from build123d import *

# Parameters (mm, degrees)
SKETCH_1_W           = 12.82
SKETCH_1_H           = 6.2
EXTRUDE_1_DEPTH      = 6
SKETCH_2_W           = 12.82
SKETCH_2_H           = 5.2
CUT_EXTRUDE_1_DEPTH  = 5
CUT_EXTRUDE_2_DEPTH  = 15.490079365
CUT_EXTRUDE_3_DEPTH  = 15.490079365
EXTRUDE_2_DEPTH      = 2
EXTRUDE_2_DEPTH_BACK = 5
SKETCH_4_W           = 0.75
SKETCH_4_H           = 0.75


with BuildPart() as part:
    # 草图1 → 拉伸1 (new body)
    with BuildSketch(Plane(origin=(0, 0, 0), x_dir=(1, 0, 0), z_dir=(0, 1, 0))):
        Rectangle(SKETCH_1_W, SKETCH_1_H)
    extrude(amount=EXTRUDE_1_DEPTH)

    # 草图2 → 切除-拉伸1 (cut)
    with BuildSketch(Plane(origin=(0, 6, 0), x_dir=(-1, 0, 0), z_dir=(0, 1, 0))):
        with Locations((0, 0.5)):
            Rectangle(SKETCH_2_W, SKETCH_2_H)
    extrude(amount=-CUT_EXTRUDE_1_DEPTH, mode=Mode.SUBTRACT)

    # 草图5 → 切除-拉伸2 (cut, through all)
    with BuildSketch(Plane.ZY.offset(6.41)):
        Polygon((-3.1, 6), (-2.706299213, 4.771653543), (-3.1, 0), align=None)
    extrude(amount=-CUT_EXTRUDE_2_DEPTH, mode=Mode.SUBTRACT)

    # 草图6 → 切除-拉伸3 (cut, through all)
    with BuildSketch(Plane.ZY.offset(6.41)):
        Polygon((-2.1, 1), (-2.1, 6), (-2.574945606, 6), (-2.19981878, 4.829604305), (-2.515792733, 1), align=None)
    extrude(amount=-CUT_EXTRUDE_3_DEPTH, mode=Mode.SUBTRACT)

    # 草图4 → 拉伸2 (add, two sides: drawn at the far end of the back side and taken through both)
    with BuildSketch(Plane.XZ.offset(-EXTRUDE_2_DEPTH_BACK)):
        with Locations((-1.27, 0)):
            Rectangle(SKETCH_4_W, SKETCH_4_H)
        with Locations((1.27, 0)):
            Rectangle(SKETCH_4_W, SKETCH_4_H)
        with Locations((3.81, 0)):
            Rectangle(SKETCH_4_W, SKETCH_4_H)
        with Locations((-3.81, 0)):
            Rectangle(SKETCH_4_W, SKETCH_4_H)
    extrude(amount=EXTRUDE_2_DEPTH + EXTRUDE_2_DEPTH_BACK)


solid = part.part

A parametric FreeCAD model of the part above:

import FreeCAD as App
import Part
import Sketcher
from FreeCAD import Vector

doc = App.newDocument("Part")
params = doc.addObject("Spreadsheet::Sheet", "Params")
for row, (alias, value) in enumerate([
    ("sketch1_height", "6.2 mm"),
    ("sketch1_width", "12.82 mm"),
    ("pad1_length", "6 mm"),
    ("sketch2_height", "5.2 mm"),
    ("sketch2_width", "12.82 mm"),
    ("pocket1_length", "5 mm"),
    ("sketch3_width", "6 mm"),
    ("sketch4_width", "5 mm"),
    ("sketch5_width", "0.75 mm"),
    ("pad2_length", "2 mm"),
    ("pad2_length2", "5 mm"),
], start=1):
    params.set(f"A{row}", alias)
    params.set(f"B{row}", "=" + value)
    params.setAlias(f"B{row}", alias)

body = doc.addObject("PartDesign::Body", "Body")

sketch1 = body.newObject("Sketcher::SketchObject", "Sketch")
sketch1.AttachmentSupport = (doc.getObject("XZ_Plane"), [""])
sketch1.MapMode = "FlatFace"
sketch1.addGeometry([
    Part.LineSegment(Vector(-6, -3, 0), Vector(-6, 3, 0)),
    Part.LineSegment(Vector(-6, 3, 0), Vector(6, 3, 0)),
    Part.LineSegment(Vector(6, 3, 0), Vector(6, -3, 0)),
    Part.LineSegment(Vector(6, -3, 0), Vector(-6, -3, 0)),
], False)
sketch1.addConstraint([
    Sketcher.Constraint("Coincident", 0, 2, 1, 1),
    Sketcher.Constraint("Coincident", 1, 2, 2, 1),
    Sketcher.Constraint("Coincident", 2, 2, 3, 1),
    Sketcher.Constraint("Coincident", 3, 2, 0, 1),
    Sketcher.Constraint("Vertical", 0),
    Sketcher.Constraint("Horizontal", 1),
    Sketcher.Constraint("Vertical", 2),
    Sketcher.Constraint("Horizontal", 3),
    Sketcher.Constraint("Symmetric", 0, 2, 2, 2, -1, 1),
    Sketcher.Constraint("DistanceY", 0, 1, 0, 2, 6.2),
    Sketcher.Constraint("DistanceX", 1, 1, 1, 2, 12.82),
])
sketch1.setExpression("Constraints[9]", "Params.sketch1_height")
sketch1.setExpression("Constraints[10]", "Params.sketch1_width")
pad1 = body.newObject("PartDesign::Pad", "Pad")
pad1.Profile = sketch1
pad1.setExpression("Length", "Params.pad1_length")
pad1.Reversed = True

sketch2 = body.newObject("Sketcher::SketchObject", "Sketch001")
sketch2.AttachmentSupport = (doc.getObject("XZ_Plane"), [""])
sketch2.MapMode = "FlatFace"
sketch2.AttachmentOffset = App.Placement(Vector(0, 0, -6), App.Rotation())
sketch2.addGeometry([
    Part.LineSegment(Vector(6, 3, 0), Vector(6, -2, 0)),
    Part.LineSegment(Vector(6, -2, 0), Vector(-6, -2, 0)),
    Part.LineSegment(Vector(-6, -2, 0), Vector(-6, 3, 0)),
    Part.LineSegment(Vector(-6, 3, 0), Vector(6, 3, 0)),
], False)
sketch2.addConstraint([
    Sketcher.Constraint("Coincident", 0, 2, 1, 1),
    Sketcher.Constraint("Coincident", 1, 2, 2, 1),
    Sketcher.Constraint("Coincident", 2, 2, 3, 1),
    Sketcher.Constraint("Coincident", 3, 2, 0, 1),
    Sketcher.Constraint("Vertical", 0),
    Sketcher.Constraint("Horizontal", 1),
    Sketcher.Constraint("Vertical", 2),
    Sketcher.Constraint("Horizontal", 3),
    Sketcher.Constraint("DistanceY", 0, 2, 0, 1, 5.2),
    Sketcher.Constraint("DistanceX", 1, 2, 1, 1, 12.82),
    Sketcher.Constraint("DistanceY", 0, 2, -1, 1, 2.1),
    Sketcher.Constraint("DistanceX", -1, 1, 0, 2, 6.41),
])
sketch2.setExpression("Constraints[8]", "Params.sketch2_height")
sketch2.setExpression("Constraints[9]", "Params.sketch2_width")
pocket1 = body.newObject("PartDesign::Pocket", "Pocket")
pocket1.Profile = sketch2
pocket1.setExpression("Length", "Params.pocket1_length")
pocket1.Reversed = True

sketch3 = body.newObject("Sketcher::SketchObject", "Sketch002")
sketch3.AttachmentSupport = (doc.getObject("YZ_Plane"), [""])
sketch3.MapMode = "FlatFace"
sketch3.AttachmentOffset = App.Placement(Vector(0, 0, -6.41), App.Rotation())
sketch3.addGeometry([
    Part.LineSegment(Vector(4.8, -2.7, 0), Vector(6, -3.1, 0)),
    Part.LineSegment(Vector(6, -3.1, 0), Vector(0, -3.1, 0)),
    Part.LineSegment(Vector(0, -3.1, 0), Vector(4.8, -2.7, 0)),
], False)
sketch3.addConstraint([
    Sketcher.Constraint("Coincident", 0, 2, 1, 1),
    Sketcher.Constraint("Coincident", 1, 2, 2, 1),
    Sketcher.Constraint("Coincident", 2, 2, 0, 1),
    Sketcher.Constraint("Horizontal", 1),
    Sketcher.Constraint("PointOnObject", 1, 2, -2),
    Sketcher.Constraint("DistanceX", 1, 2, 1, 1, 6.0),
    Sketcher.Constraint("DistanceY", 0, 2, -1, 1, 3.1),
    Sketcher.Constraint("DistanceY", 2, 2, -1, 1, 2.706299),
    Sketcher.Constraint("Distance", 0, 1.289897),
])
sketch3.setExpression("Constraints[5]", "Params.sketch3_width")
pocket2 = body.newObject("PartDesign::Pocket", "Pocket001")
pocket2.Profile = sketch3
pocket2.Type = "ThroughAll"
pocket2.Reversed = True

sketch4 = body.newObject("Sketcher::SketchObject", "Sketch003")
sketch4.AttachmentSupport = (doc.getObject("YZ_Plane"), [""])
sketch4.MapMode = "FlatFace"
sketch4.AttachmentOffset = App.Placement(Vector(0, 0, -6.41), App.Rotation())
sketch4.addGeometry([
    Part.LineSegment(Vector(1, -2.1, 0), Vector(6, -2.1, 0)),
    Part.LineSegment(Vector(6, -2.1, 0), Vector(6, -2.57, 0)),
    Part.LineSegment(Vector(6, -2.57, 0), Vector(4.83, -2.2, 0)),
    Part.LineSegment(Vector(4.83, -2.2, 0), Vector(1, -2.52, 0)),
    Part.LineSegment(Vector(1, -2.52, 0), Vector(1, -2.1, 0)),
], False)
sketch4.addConstraint([
    Sketcher.Constraint("Coincident", 0, 2, 1, 1),
    Sketcher.Constraint("Coincident", 1, 2, 2, 1),
    Sketcher.Constraint("Coincident", 2, 2, 3, 1),
    Sketcher.Constraint("Coincident", 3, 2, 4, 1),
    Sketcher.Constraint("Coincident", 4, 2, 0, 1),
    Sketcher.Constraint("Horizontal", 0),
    Sketcher.Constraint("Vertical", 1),
    Sketcher.Constraint("Vertical", 4),
    Sketcher.Constraint("DistanceX", 0, 1, 0, 2, 5.0),
    Sketcher.Constraint("DistanceX", -1, 1, 0, 2, 6.0),
    Sketcher.Constraint("DistanceY", 0, 2, -1, 1, 2.1),
    Sketcher.Constraint("DistanceY", 1, 2, 1, 1, 0.474946),
    Sketcher.Constraint("DistanceY", 4, 1, 4, 2, 0.415793),
    Sketcher.Constraint("DistanceY", 2, 2, -1, 1, 2.199819),
    Sketcher.Constraint("Distance", 2, 1.229043),
])
sketch4.setExpression("Constraints[8]", "Params.sketch4_width")
pocket3 = body.newObject("PartDesign::Pocket", "Pocket002")
pocket3.Profile = sketch4
pocket3.Type = "ThroughAll"
pocket3.Reversed = True

sketch5 = body.newObject("Sketcher::SketchObject", "Sketch004")
sketch5.AttachmentSupport = (doc.getObject("XZ_Plane"), [""])
sketch5.MapMode = "FlatFace"
sketch5.addGeometry([
    Part.LineSegment(Vector(-1.6, 0.4, 0), Vector(-1.6, -0.4, 0)),
    Part.LineSegment(Vector(-1.6, -0.4, 0), Vector(-0.9, -0.4, 0)),
    Part.LineSegment(Vector(-0.9, -0.4, 0), Vector(-0.9, 0.4, 0)),
    Part.LineSegment(Vector(-0.9, 0.4, 0), Vector(-1.6, 0.4, 0)),
    Part.LineSegment(Vector(0.9, 0.4, 0), Vector(0.9, -0.4, 0)),
    Part.LineSegment(Vector(0.9, -0.4, 0), Vector(1.6, -0.4, 0)),
    Part.LineSegment(Vector(1.6, -0.4, 0), Vector(1.6, 0.4, 0)),
    Part.LineSegment(Vector(1.6, 0.4, 0), Vector(0.9, 0.4, 0)),
    Part.LineSegment(Vector(3.4, 0.4, 0), Vector(3.4, -0.4, 0)),
    Part.LineSegment(Vector(3.4, -0.4, 0), Vector(4.2, -0.4, 0)),
    Part.LineSegment(Vector(4.2, -0.4, 0), Vector(4.2, 0.4, 0)),
    Part.LineSegment(Vector(4.2, 0.4, 0), Vector(3.4, 0.4, 0)),
    Part.LineSegment(Vector(-4.2, 0.4, 0), Vector(-4.2, -0.4, 0)),
    Part.LineSegment(Vector(-4.2, -0.4, 0), Vector(-3.4, -0.4, 0)),
    Part.LineSegment(Vector(-3.4, -0.4, 0), Vector(-3.4, 0.4, 0)),
    Part.LineSegment(Vector(-3.4, 0.4, 0), Vector(-4.2, 0.4, 0)),
], False)
sketch5.addConstraint([
    Sketcher.Constraint("Coincident", 0, 2, 1, 1),
    Sketcher.Constraint("Coincident", 1, 2, 2, 1),
    Sketcher.Constraint("Coincident", 2, 2, 3, 1),
    Sketcher.Constraint("Coincident", 3, 2, 0, 1),
    Sketcher.Constraint("Coincident", 4, 2, 5, 1),
    Sketcher.Constraint("Coincident", 5, 2, 6, 1),
    Sketcher.Constraint("Coincident", 6, 2, 7, 1),
    Sketcher.Constraint("Coincident", 7, 2, 4, 1),
    Sketcher.Constraint("Coincident", 8, 2, 9, 1),
    Sketcher.Constraint("Coincident", 9, 2, 10, 1),
    Sketcher.Constraint("Coincident", 10, 2, 11, 1),
    Sketcher.Constraint("Coincident", 11, 2, 8, 1),
    Sketcher.Constraint("Coincident", 12, 2, 13, 1),
    Sketcher.Constraint("Coincident", 13, 2, 14, 1),
    Sketcher.Constraint("Coincident", 14, 2, 15, 1),
    Sketcher.Constraint("Coincident", 15, 2, 12, 1),
    Sketcher.Constraint("Vertical", 0),
    Sketcher.Constraint("Horizontal", 1),
    Sketcher.Constraint("Vertical", 2),
    Sketcher.Constraint("Horizontal", 3),
    Sketcher.Constraint("Vertical", 4),
    Sketcher.Constraint("Horizontal", 5),
    Sketcher.Constraint("Vertical", 6),
    Sketcher.Constraint("Horizontal", 7),
    Sketcher.Constraint("Vertical", 8),
    Sketcher.Constraint("Horizontal", 9),
    Sketcher.Constraint("Vertical", 10),
    Sketcher.Constraint("Horizontal", 11),
    Sketcher.Constraint("Vertical", 12),
    Sketcher.Constraint("Horizontal", 13),
    Sketcher.Constraint("Vertical", 14),
    Sketcher.Constraint("Horizontal", 15),
    Sketcher.Constraint("Symmetric", 2, 2, 4, 2, -1, 1),
    Sketcher.Constraint("Symmetric", 0, 2, 6, 2, -1, 1),
    Sketcher.Constraint("Symmetric", 10, 2, 12, 2, -1, 1),
    Sketcher.Constraint("Symmetric", 8, 2, 14, 2, -1, 1),
    Sketcher.Constraint("Horizontal", 1, 2, 4, 2),
    Sketcher.Constraint("Horizontal", 5, 2, 8, 2),
    Sketcher.Constraint("Horizontal", 7, 2, 10, 2),
    Sketcher.Constraint("Equal", 7, 9),
    Sketcher.Constraint("Equal", 15, 0),
    Sketcher.Constraint("DistanceX", 1, 1, 1, 2, 0.75),
    Sketcher.Constraint("DistanceX", 1, 2, 4, 2, 1.79),
    Sketcher.Constraint("DistanceX", 5, 2, 8, 2, 1.79),
])
sketch5.setExpression("Constraints[41]", "Params.sketch5_width")
pad2 = body.newObject("PartDesign::Pad", "Pad001")
pad2.Profile = sketch5
pad2.Type = "TwoLengths"
pad2.setExpression("Length", "Params.pad2_length")
pad2.setExpression("Length2", "Params.pad2_length2")

doc.recompute()
